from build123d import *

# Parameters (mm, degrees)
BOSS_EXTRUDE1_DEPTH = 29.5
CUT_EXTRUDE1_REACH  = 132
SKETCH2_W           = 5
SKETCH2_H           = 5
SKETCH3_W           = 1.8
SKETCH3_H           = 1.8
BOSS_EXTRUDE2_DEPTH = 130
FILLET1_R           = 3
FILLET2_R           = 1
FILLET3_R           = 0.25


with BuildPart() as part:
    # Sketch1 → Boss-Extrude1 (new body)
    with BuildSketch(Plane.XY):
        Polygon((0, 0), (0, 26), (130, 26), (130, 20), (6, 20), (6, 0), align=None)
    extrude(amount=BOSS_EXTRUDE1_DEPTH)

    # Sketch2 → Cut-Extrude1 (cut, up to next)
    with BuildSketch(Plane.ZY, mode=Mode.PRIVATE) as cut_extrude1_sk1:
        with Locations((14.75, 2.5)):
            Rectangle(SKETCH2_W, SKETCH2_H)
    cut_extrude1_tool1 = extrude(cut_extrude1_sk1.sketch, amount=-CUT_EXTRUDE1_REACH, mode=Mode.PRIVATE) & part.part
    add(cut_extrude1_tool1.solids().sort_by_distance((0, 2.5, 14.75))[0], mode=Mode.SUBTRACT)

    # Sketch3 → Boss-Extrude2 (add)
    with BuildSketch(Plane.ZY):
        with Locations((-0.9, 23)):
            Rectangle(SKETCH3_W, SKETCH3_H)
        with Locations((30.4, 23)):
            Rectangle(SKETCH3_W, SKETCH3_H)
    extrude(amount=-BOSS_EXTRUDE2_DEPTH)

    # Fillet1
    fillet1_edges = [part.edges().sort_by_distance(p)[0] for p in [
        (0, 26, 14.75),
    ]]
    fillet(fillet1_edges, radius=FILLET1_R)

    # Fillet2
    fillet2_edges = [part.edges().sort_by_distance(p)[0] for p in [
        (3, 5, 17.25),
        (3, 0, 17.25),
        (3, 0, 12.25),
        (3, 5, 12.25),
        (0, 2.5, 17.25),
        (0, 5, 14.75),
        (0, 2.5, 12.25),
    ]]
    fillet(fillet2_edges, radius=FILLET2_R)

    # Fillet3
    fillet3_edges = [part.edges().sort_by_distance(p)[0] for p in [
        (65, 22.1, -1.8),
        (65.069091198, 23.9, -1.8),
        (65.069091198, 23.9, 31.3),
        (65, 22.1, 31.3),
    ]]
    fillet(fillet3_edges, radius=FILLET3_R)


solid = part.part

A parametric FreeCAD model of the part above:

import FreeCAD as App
import Part
import Sketcher


def edges_at(feature, points):
    """Names of the edges that pass closest to the given points."""
    edges = feature.Shape.Edges
    near = lambda p: min(range(len(edges)), key=lambda i: edges[i].distToShape(Part.Vertex(*p))[0])
    return sorted({f"Edge{near(p) + 1}" for p in points})

doc = App.newDocument("Part")
body = doc.addObject("PartDesign::Body", "Body")

sketch1 = body.newObject("Sketcher::SketchObject", "Sketch")
sketch1.AttachmentSupport = (doc.getObject("XY_Plane"), [""])
sketch1.MapMode = "FlatFace"
sketch1.addGeometry([
    Part.LineSegment(App.Vector(0, 26, 0), App.Vector(0, 0, 0)),
    Part.LineSegment(App.Vector(0, 0, 0), App.Vector(6, 0, 0)),
    Part.LineSegment(App.Vector(6, 0, 0), App.Vector(6, 20, 0)),
    Part.LineSegment(App.Vector(6, 20, 0), App.Vector(130, 20, 0)),
    Part.LineSegment(App.Vector(130, 20, 0), App.Vector(130, 26, 0)),
    Part.LineSegment(App.Vector(130, 26, 0), App.Vector(0, 26, 0)),
], False)
sketch1.addConstraint([
    Sketcher.Constraint("Coincident", 0, 2, 1, 1),
    Sketcher.Constraint("Coincident", 1, 2, 2, 1),
    Sketcher.Constraint("Coincident", 2, 2, 3, 1),
    Sketcher.Constraint("Coincident", 3, 2, 4, 1),
    Sketcher.Constraint("Coincident", 4, 2, 5, 1),
    Sketcher.Constraint("Coincident", 5, 2, 0, 1),
    Sketcher.Constraint("Vertical", 0),
    Sketcher.Constraint("Horizontal", 1),
    Sketcher.Constraint("Vertical", 2),
    Sketcher.Constraint("Horizontal", 3),
    Sketcher.Constraint("Vertical", 4),
    Sketcher.Constraint("Horizontal", 5),
    Sketcher.Constraint("Coincident", 0, 2, -1, 1),
    Sketcher.Constraint("Equal", 1, 4),
    Sketcher.Constraint("DistanceX", 1, 1, 1, 2, 6.0),
    Sketcher.Constraint("DistanceX", 3, 1, 3, 2, 124.0),
    Sketcher.Constraint("DistanceY", 0, 2, 0, 1, 26.0),
])
pad1 = body.newObject("PartDesign::Pad", "Pad")
pad1.Profile = sketch1
pad1.Length = 29.5

sketch2 = body.newObject("Sketcher::SketchObject", "Sketch001")
sketch2.AttachmentSupport = (doc.getObject("YZ_Plane"), [""])
sketch2.MapMode = "FlatFace"
sketch2.addGeometry([
    Part.LineSegment(App.Vector(5, 12, 0), App.Vector(0, 12, 0)),
    Part.LineSegment(App.Vector(0, 12, 0), App.Vector(0, 17, 0)),
    Part.LineSegment(App.Vector(0, 17, 0), App.Vector(5, 17, 0)),
    Part.LineSegment(App.Vector(5, 17, 0), App.Vector(5, 12, 0)),
], False)
sketch2.addConstraint([
    Sketcher.Constraint("Coincident", 0, 2, 1, 1),
    Sketcher.Constraint("Coincident", 1, 2, 2, 1),
    Sketcher.Constraint("Coincident", 2, 2, 3, 1),
    Sketcher.Constraint("Coincident", 3, 2, 0, 1),
    Sketcher.Constraint("Horizontal", 0),
    Sketcher.Constraint("Vertical", 1),
    Sketcher.Constraint("Horizontal", 2),
    Sketcher.Constraint("Vertical", 3),
    Sketcher.Constraint("PointOnObject", 0, 2, -2),
    Sketcher.Constraint("Equal", 2, 1),
    Sketcher.Constraint("DistanceX", 0, 2, 0, 1, 5.0),
    Sketcher.Constraint("DistanceY", -1, 1, 0, 2, 12.25),
])
pocket1 = body.newObject("PartDesign::Pocket", "Pocket")
pocket1.Profile = sketch2
pocket1.Type = "UpToFirst"
pocket1.Reversed = True

sketch3 = body.newObject("Sketcher::SketchObject", "Sketch002")
sketch3.AttachmentSupport = (doc.getObject("YZ_Plane"), [""])
sketch3.MapMode = "FlatFace"
sketch3.addGeometry([
    Part.LineSegment(App.Vector(23.9, -1.8, 0), App.Vector(22.1, -1.8, 0)),
    Part.LineSegment(App.Vector(22.1, -1.8, 0), App.Vector(22.1, 0, 0)),
    Part.LineSegment(App.Vector(22.1, 0, 0), App.Vector(23.9, 0, 0)),
    Part.LineSegment(App.Vector(23.9, 0, 0), App.Vector(23.9, -1.8, 0)),
    Part.LineSegment(App.Vector(23.9, 29.5, 0), App.Vector(22.1, 29.5, 0)),
    Part.LineSegment(App.Vector(22.1, 29.5, 0), App.Vector(22.1, 31.3, 0)),
    Part.LineSegment(App.Vector(22.1, 31.3, 0), App.Vector(23.9, 31.3, 0)),
    Part.LineSegment(App.Vector(23.9, 31.3, 0), App.Vector(23.9, 29.5, 0)),
], False)
sketch3.addConstraint([
    Sketcher.Constraint("Coincident", 0, 2, 1, 1),
    Sketcher.Constraint("Coincident", 1, 2, 2, 1),
    Sketcher.Constraint("Coincident", 2, 2, 3, 1),
    Sketcher.Constraint("Coincident", 3, 2, 0, 1),
    Sketcher.Constraint("Coincident", 4, 2, 5, 1),
    Sketcher.Constraint("Coincident", 5, 2, 6, 1),
    Sketcher.Constraint("Coincident", 6, 2, 7, 1),
    Sketcher.Constraint("Coincident", 7, 2, 4, 1),
    Sketcher.Constraint("Horizontal", 0),
    Sketcher.Constraint("Vertical", 1),
    Sketcher.Constraint("Horizontal", 2),
    Sketcher.Constraint("Vertical", 3),
    Sketcher.Constraint("Horizontal", 4),
    Sketcher.Constraint("Vertical", 5),
    Sketcher.Constraint("Horizontal", 6),
    Sketcher.Constraint("Vertical", 7),
    Sketcher.Constraint("PointOnObject", 1, 2, -1),
    Sketcher.Constraint("Vertical", 1, 2, 4, 2),
    Sketcher.Constraint("Vertical", 3, 2, 6, 2),
    Sketcher.Constraint("Equal", 6, 1),
    Sketcher.Constraint("Equal", 3, 5),
    Sketcher.Constraint("DistanceX", 0, 2, 0, 1, 1.8),
    Sketcher.Constraint("DistanceX", -1, 1, 0, 2, 22.1),
    Sketcher.Constraint("DistanceY", -1, 1, 4, 2, 29.5),
])
pad2 = body.newObject("PartDesign::Pad", "Pad001")
pad2.Profile = sketch3
pad2.Length = 130
doc.recompute()

fillet = body.newObject("PartDesign::Fillet", "Fillet")
fillet.Base = (pad2, edges_at(pad2, [(0, 26, 14.75)]))
fillet.Radius = 3
doc.recompute()

fillet2 = body.newObject("PartDesign::Fillet", "Fillet001")
fillet2.Base = (fillet, edges_at(fillet, [
    (3, 5, 17.25),
    (3, 0, 17.25),
    (3, 0, 12.25),
    (3, 5, 12.25),
    (0, 2.5, 17.25),
    (0, 5, 14.75),
    (0, 2.5, 12.25),
]))
fillet2.Radius = 1
doc.recompute()

fillet3 = body.newObject("PartDesign::Fillet", "Fillet002")
fillet3.Base = (fillet2, edges_at(fillet2, [
    (65, 22.1, -1.8),
    (65.069, 23.9, -1.8),
    (65.069, 23.9, 31.3),
    (65, 22.1, 31.3),
]))
fillet3.Radius = 0.25

doc.recompute()
